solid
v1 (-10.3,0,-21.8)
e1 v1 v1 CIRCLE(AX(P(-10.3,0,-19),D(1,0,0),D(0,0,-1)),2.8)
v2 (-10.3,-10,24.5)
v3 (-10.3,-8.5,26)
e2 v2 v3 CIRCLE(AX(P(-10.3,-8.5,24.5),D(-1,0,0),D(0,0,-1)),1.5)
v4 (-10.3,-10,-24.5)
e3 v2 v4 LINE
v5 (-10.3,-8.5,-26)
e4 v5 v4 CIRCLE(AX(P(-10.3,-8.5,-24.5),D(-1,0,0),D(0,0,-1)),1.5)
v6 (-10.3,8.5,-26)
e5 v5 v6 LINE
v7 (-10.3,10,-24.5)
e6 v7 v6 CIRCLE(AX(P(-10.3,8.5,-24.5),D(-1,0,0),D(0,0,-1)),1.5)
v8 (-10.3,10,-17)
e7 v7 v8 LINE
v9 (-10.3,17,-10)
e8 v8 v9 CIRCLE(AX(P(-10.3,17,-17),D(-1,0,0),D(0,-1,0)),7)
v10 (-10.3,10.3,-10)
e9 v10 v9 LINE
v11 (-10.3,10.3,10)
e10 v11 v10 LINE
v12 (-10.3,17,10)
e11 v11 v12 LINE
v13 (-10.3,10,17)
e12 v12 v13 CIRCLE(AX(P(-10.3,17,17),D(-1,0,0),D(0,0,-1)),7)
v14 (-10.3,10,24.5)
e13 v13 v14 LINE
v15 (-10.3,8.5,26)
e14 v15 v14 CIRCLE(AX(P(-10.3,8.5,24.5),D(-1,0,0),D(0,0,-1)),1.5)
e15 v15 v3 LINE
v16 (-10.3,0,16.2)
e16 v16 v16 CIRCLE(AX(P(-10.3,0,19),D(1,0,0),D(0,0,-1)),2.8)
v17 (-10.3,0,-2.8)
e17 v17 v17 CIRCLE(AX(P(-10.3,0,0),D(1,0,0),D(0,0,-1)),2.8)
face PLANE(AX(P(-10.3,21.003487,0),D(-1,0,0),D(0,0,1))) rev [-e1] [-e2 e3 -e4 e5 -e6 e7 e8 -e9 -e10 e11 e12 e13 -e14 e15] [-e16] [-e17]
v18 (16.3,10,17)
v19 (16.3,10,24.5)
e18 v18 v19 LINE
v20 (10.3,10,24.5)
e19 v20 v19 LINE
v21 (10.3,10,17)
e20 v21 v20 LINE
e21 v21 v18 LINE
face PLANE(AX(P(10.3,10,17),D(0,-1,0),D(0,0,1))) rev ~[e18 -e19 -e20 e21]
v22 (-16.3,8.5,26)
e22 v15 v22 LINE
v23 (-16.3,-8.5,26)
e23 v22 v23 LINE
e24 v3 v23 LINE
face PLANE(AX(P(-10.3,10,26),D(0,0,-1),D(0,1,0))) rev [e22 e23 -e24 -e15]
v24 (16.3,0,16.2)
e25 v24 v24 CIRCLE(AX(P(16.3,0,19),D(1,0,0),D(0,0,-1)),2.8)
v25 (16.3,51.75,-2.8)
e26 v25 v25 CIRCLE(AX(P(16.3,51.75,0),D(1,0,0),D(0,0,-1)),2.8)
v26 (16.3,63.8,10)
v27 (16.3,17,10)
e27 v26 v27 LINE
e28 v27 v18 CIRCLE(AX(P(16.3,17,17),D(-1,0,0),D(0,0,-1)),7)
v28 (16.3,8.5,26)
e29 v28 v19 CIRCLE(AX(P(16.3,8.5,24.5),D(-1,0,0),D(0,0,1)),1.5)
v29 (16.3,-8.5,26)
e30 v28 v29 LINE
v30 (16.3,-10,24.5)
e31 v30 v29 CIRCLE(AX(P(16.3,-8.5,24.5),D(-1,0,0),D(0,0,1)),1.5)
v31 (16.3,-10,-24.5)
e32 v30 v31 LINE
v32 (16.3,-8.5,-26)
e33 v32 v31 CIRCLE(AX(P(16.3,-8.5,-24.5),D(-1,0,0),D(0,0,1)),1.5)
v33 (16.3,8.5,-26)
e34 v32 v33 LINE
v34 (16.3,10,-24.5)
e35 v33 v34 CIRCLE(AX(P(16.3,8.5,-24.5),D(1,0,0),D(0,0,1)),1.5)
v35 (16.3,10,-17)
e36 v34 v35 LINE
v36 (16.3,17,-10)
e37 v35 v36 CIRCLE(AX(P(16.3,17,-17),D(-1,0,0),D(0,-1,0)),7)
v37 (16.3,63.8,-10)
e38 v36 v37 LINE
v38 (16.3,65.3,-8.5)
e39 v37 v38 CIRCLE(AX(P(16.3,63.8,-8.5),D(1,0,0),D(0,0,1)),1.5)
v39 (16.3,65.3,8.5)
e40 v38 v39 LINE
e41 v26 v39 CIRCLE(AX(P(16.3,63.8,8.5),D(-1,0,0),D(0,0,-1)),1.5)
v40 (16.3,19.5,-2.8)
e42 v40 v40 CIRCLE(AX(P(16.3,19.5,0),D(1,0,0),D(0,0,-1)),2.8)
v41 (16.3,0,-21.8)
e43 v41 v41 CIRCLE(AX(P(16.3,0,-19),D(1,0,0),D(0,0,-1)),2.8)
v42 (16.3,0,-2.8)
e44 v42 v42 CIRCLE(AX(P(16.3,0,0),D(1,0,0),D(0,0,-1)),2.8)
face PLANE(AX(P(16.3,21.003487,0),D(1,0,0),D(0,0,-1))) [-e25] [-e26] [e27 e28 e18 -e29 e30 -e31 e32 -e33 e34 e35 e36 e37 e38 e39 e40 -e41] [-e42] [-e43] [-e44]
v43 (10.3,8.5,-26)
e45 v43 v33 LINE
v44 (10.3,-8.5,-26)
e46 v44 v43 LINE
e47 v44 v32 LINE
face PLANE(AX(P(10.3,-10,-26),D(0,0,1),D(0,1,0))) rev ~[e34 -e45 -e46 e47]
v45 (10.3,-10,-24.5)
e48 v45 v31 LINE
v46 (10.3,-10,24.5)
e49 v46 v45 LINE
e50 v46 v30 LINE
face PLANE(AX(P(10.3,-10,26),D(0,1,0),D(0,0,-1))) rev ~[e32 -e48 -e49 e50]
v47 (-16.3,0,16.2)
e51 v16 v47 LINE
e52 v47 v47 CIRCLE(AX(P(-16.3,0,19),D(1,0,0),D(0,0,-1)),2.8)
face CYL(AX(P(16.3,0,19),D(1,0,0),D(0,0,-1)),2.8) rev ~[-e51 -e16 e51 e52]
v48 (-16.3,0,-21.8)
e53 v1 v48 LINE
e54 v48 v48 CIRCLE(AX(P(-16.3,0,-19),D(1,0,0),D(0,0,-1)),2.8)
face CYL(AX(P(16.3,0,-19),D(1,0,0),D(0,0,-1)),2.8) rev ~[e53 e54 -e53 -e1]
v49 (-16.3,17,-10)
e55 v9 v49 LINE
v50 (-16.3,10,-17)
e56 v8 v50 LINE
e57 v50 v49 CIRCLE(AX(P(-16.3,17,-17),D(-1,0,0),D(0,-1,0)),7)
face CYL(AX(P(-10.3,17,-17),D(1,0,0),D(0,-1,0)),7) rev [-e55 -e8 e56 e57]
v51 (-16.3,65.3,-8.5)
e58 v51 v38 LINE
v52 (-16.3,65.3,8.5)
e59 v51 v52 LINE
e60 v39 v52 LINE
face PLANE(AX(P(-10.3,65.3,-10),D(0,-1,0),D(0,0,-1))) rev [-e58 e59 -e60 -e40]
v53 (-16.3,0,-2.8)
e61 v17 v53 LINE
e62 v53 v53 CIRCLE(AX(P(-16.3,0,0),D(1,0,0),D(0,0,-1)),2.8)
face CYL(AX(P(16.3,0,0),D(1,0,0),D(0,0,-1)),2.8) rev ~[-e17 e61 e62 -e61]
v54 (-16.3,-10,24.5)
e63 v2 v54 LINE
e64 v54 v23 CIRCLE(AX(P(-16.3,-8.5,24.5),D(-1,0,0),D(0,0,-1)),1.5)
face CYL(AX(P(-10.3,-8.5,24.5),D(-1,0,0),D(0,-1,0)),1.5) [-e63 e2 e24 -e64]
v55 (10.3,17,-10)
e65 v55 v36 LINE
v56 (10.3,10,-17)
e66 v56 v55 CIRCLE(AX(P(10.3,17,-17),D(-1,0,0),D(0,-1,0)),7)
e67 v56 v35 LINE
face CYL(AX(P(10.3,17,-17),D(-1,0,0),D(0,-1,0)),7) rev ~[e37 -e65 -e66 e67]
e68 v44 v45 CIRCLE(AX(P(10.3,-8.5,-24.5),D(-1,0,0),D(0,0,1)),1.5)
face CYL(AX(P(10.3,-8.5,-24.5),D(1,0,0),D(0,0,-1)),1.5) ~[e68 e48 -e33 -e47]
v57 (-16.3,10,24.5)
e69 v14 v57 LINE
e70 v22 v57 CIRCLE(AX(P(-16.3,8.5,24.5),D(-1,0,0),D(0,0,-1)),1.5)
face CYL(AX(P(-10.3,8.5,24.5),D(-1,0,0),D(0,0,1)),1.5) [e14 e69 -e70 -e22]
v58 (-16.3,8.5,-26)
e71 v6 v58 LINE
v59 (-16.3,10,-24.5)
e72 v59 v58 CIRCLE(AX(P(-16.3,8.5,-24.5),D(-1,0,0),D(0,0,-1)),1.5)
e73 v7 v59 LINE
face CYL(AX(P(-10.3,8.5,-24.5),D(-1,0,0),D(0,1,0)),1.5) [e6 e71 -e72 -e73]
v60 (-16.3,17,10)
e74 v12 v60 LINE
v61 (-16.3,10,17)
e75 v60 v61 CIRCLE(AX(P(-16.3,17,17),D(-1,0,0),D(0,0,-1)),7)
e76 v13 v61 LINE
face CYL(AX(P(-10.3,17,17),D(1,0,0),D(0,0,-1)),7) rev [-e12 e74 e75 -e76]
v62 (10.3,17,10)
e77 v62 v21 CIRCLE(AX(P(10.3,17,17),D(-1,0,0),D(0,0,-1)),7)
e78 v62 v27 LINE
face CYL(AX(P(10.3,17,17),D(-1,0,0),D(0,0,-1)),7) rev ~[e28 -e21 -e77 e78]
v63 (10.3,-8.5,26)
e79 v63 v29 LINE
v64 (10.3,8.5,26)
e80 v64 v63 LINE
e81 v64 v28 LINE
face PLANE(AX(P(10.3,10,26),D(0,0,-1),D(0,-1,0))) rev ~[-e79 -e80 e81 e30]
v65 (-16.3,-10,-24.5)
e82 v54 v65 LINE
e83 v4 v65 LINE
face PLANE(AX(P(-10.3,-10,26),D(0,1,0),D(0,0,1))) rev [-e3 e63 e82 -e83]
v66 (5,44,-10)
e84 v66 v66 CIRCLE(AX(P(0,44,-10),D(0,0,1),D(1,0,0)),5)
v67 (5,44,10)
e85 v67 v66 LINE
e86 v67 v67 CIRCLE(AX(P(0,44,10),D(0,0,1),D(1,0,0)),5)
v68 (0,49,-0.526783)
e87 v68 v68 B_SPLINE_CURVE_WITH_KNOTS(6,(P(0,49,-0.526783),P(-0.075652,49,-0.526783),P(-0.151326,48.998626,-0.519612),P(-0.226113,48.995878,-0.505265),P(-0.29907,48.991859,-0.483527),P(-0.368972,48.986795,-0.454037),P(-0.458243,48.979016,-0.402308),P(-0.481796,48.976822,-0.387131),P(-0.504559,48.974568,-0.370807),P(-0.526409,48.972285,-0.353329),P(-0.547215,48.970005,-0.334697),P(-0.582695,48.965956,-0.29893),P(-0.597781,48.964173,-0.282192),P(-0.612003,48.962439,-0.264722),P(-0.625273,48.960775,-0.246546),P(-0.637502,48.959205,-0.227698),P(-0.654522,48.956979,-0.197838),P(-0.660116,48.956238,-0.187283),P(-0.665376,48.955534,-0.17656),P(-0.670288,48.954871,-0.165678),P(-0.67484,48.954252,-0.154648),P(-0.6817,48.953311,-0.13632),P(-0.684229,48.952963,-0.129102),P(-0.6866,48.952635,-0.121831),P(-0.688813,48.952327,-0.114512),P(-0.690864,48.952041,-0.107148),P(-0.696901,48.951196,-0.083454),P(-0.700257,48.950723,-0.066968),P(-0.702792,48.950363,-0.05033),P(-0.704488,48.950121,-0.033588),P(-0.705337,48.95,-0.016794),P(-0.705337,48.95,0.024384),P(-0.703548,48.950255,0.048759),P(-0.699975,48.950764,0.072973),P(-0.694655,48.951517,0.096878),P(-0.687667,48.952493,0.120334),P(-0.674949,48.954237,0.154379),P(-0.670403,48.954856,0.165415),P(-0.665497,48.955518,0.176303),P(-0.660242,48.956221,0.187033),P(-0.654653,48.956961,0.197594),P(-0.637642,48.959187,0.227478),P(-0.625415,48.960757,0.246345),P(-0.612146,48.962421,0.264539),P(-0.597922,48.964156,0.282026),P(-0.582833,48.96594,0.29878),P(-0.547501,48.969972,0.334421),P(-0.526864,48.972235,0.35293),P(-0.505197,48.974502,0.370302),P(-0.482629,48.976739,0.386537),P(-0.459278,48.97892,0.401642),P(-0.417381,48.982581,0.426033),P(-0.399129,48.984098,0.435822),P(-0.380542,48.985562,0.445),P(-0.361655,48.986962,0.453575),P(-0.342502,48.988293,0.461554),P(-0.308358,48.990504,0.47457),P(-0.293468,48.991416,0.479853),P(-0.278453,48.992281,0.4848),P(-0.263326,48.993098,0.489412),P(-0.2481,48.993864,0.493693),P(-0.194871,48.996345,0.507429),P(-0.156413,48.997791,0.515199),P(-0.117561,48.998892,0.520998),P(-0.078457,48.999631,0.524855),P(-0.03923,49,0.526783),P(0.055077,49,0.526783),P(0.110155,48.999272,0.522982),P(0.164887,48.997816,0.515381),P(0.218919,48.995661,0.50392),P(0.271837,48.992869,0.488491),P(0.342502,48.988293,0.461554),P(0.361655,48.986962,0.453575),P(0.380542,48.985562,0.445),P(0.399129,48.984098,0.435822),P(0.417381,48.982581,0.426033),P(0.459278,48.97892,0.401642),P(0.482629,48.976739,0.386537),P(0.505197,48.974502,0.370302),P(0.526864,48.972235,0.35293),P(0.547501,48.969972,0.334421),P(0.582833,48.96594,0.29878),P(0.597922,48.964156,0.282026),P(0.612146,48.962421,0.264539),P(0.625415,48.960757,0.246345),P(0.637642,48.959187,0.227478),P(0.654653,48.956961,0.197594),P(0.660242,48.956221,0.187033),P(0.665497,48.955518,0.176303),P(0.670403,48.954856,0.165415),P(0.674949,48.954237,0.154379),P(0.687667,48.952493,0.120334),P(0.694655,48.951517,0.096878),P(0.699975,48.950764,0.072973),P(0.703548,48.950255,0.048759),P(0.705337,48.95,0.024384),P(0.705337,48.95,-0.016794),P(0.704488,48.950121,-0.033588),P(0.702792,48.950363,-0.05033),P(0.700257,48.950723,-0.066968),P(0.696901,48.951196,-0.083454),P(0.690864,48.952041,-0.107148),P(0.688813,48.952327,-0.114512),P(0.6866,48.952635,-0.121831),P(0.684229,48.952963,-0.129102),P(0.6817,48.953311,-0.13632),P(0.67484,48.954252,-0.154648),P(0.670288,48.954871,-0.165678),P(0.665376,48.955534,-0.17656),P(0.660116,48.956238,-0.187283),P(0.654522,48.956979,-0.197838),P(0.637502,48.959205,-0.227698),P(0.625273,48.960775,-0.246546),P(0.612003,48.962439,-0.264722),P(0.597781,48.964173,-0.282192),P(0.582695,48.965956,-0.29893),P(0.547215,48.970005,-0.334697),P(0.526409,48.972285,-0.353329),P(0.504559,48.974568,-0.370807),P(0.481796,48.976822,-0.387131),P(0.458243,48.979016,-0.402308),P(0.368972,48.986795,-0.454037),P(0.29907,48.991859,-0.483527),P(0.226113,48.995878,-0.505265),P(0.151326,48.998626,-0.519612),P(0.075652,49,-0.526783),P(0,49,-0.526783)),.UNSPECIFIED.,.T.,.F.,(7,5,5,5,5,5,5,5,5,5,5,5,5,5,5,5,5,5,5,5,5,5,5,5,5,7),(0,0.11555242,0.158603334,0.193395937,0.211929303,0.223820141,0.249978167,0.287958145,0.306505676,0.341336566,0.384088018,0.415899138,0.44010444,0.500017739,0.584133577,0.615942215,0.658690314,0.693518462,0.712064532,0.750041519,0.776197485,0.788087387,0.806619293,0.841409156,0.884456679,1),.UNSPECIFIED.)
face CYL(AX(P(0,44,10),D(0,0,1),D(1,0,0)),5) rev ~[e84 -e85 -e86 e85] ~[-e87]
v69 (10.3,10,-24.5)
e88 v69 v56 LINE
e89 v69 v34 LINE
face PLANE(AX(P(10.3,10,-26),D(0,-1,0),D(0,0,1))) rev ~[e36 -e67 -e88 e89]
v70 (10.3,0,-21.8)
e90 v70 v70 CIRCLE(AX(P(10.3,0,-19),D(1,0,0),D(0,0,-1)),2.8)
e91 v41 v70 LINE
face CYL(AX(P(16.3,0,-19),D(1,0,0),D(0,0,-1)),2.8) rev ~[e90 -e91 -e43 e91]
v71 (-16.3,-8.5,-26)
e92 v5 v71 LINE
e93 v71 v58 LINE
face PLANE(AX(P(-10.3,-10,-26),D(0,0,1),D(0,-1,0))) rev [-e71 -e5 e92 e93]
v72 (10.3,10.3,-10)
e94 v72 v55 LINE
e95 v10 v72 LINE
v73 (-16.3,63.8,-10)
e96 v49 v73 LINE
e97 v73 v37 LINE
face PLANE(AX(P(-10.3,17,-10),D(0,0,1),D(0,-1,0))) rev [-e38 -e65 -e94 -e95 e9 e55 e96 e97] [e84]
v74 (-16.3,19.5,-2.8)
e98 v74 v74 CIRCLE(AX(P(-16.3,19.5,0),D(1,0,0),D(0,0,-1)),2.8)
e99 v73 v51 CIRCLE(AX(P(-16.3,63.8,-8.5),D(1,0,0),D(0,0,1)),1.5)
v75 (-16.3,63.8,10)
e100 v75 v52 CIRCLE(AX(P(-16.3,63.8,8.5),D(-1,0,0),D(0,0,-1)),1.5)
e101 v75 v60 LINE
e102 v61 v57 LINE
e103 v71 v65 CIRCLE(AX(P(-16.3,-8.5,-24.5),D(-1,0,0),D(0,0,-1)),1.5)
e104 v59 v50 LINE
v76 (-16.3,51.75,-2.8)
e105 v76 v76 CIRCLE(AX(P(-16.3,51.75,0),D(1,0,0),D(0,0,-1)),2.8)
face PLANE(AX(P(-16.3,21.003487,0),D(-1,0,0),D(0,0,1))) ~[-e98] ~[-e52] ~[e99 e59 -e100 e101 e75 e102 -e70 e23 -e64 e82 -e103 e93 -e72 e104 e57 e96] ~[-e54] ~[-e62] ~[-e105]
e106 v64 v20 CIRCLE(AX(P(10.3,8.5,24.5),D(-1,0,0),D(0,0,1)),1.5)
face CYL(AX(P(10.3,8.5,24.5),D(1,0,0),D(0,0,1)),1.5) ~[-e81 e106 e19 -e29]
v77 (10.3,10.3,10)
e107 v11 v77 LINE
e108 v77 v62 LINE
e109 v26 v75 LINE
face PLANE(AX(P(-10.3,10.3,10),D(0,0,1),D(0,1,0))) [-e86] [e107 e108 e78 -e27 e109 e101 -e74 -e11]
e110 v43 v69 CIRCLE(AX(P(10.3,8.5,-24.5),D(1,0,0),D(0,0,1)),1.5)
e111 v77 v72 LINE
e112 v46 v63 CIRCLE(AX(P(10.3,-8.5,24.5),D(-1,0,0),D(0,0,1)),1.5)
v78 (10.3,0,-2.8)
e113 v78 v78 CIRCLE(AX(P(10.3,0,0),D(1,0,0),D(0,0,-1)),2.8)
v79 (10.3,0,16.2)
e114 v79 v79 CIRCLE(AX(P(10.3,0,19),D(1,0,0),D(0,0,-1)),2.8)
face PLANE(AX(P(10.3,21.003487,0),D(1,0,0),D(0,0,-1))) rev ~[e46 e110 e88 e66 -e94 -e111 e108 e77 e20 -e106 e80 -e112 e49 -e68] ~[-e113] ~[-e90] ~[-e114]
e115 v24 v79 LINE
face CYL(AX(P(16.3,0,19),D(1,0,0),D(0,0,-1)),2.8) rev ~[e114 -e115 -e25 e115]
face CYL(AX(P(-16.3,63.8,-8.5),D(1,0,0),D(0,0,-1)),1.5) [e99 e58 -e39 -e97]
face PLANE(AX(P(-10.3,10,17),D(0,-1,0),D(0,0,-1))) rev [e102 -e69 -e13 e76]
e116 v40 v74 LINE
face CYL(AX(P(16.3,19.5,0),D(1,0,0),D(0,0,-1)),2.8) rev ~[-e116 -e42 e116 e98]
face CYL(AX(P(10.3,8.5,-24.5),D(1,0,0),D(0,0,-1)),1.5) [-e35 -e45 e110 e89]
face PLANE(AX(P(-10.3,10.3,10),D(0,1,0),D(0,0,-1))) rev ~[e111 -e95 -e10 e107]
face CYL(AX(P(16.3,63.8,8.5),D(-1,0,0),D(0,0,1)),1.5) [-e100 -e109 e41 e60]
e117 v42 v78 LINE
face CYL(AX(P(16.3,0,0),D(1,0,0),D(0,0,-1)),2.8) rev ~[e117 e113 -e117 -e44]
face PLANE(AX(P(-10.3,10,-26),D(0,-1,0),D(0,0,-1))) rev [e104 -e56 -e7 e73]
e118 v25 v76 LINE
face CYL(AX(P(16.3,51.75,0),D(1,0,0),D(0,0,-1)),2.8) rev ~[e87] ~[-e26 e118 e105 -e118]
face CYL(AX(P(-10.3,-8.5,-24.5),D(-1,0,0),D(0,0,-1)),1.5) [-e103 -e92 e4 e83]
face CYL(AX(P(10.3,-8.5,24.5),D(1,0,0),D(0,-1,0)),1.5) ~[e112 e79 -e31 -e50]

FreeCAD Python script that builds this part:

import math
import FreeCAD as App
import Part
import Sketcher
Q = App.Units.Quantity


def edges_at(feature, points):
    """Names of the edges that pass closest to the given points."""
    edges = feature.Shape.Edges
    near = lambda p: min(range(len(edges)), key=lambda i: edges[i].distToShape(Part.Vertex(*p))[0])
    return sorted({f"Edge{near(p) + 1}" for p in points})


def add_polygon(sketch, points):
    """Adds a closed chain of lines whose ends are joined by coincident constraints."""
    first, n = sketch.GeometryCount, len(points)
    for a, b in zip(points, points[1:] + points[:1]):
        sketch.addGeometry(Part.LineSegment(App.Vector(*a, 0), App.Vector(*b, 0)), False)
    for i in range(n):
        sketch.addConstraint(Sketcher.Constraint("Coincident", first + i, 2, first + (i + 1) % n, 1))

doc = App.newDocument("Part")
body = doc.addObject("PartDesign::Body", "Body")

sketch1 = body.newObject("Sketcher::SketchObject", "Sketch")
sketch1.AttachmentSupport = (doc.getObject("YZ_Plane"), [""])
sketch1.MapMode = "FlatFace"
add_polygon(sketch1, [(65.3, 10), (10.3, 10), (10.3, -10), (65.3, -10)])
sketch1.addConstraint(Sketcher.Constraint("Horizontal", 0))
sketch1.addConstraint(Sketcher.Constraint("Vertical", 1))
sketch1.addConstraint(Sketcher.Constraint("Horizontal", 2))
sketch1.addConstraint(Sketcher.Constraint("Vertical", 3))
sketch1.addConstraint(Sketcher.Constraint("DistanceX", 0, 2, 0, 1, Q("55 mm")))
sketch1.addConstraint(Sketcher.Constraint("DistanceY", 1, 2, 1, 1, Q("20 mm")))
sketch1.addConstraint(Sketcher.Constraint("DistanceY", -1, 1, 0, 2, Q("10 mm")))
sketch1.addConstraint(Sketcher.Constraint("DistanceX", -1, 1, 0, 2, Q("10.3 mm")))
pad1 = body.newObject("PartDesign::Pad", "Pad")
pad1.Profile = sketch1
pad1.Type = "TwoLengths"
pad1.Length = 10.3
pad1.Length2 = 10.3

sketch2 = body.newObject("Sketcher::SketchObject", "Sketch001")
sketch2.AttachmentSupport = (doc.getObject("YZ_Plane"), [""])
sketch2.MapMode = "FlatFace"
sketch2.AttachmentOffset = App.Placement(App.Vector(0, 0, 10.3), App.Rotation())
sketch2.addGeometry(Part.LineSegment(App.Vector(10, -26, 0), App.Vector(10, -17, 0)), False)
sketch2.addGeometry(Part.ArcOfCircle(Part.Circle(App.Vector(17, -17, 0), App.Vector(0, 0, 1), 7), math.radians(90), math.radians(180)), False)
sketch2.addGeometry(Part.LineSegment(App.Vector(17, -10, 0), App.Vector(65.3, -10, 0)), False)
sketch2.addGeometry(Part.LineSegment(App.Vector(65.3, -10, 0), App.Vector(65.3, 10, 0)), False)
sketch2.addGeometry(Part.LineSegment(App.Vector(65.3, 10, 0), App.Vector(17, 10, 0)), False)
sketch2.addGeometry(Part.ArcOfCircle(Part.Circle(App.Vector(17, 17, 0), App.Vector(0, 0, 1), 7), math.radians(-180), math.radians(-90)), False)
sketch2.addGeometry(Part.LineSegment(App.Vector(10, 17, 0), App.Vector(10, 26, 0)), False)
sketch2.addGeometry(Part.LineSegment(App.Vector(10, 26, 0), App.Vector(-10, 26, 0)), False)
sketch2.addGeometry(Part.LineSegment(App.Vector(-10, 26, 0), App.Vector(-10, -26, 0)), False)
sketch2.addGeometry(Part.LineSegment(App.Vector(-10, -26, 0), App.Vector(10, -26, 0)), False)
sketch2.addConstraint(Sketcher.Constraint("Tangent", 0, 2, 1, 2))
sketch2.addConstraint(Sketcher.Constraint("Tangent", 1, 1, 2, 1))
sketch2.addConstraint(Sketcher.Constraint("Coincident", 2, 2, 3, 1))
sketch2.addConstraint(Sketcher.Constraint("Coincident", 3, 2, 4, 1))
sketch2.addConstraint(Sketcher.Constraint("Tangent", 4, 2, 5, 2))
sketch2.addConstraint(Sketcher.Constraint("Tangent", 5, 1, 6, 1))
sketch2.addConstraint(Sketcher.Constraint("Coincident", 6, 2, 7, 1))
sketch2.addConstraint(Sketcher.Constraint("Coincident", 7, 2, 8, 1))
sketch2.addConstraint(Sketcher.Constraint("Coincident", 8, 2, 9, 1))
sketch2.addConstraint(Sketcher.Constraint("Coincident", 9, 2, 0, 1))
sketch2.addConstraint(Sketcher.Constraint("Vertical", 0))
sketch2.addConstraint(Sketcher.Constraint("Horizontal", 2))
sketch2.addConstraint(Sketcher.Constraint("Vertical", 3))
sketch2.addConstraint(Sketcher.Constraint("Horizontal", 4))
sketch2.addConstraint(Sketcher.Constraint("Vertical", 6))
sketch2.addConstraint(Sketcher.Constraint("Horizontal", 7))
sketch2.addConstraint(Sketcher.Constraint("Vertical", 8))
sketch2.addConstraint(Sketcher.Constraint("Horizontal", 9))
sketch2.addConstraint(Sketcher.Constraint("Equal", 1, 5))
sketch2.addConstraint(Sketcher.Constraint("Symmetric", 6, 2, 8, 2, -1, 1))
sketch2.addConstraint(Sketcher.Constraint("Symmetric", 1, 3, 5, 3, -1))
sketch2.addConstraint(Sketcher.Constraint("Equal", 9, 3))
sketch2.addConstraint(Sketcher.Constraint("Radius", 1, Q("7 mm")))
sketch2.addConstraint(Sketcher.Constraint("DistanceX", 7, 2, 7, 1, Q("20 mm")))
sketch2.addConstraint(Sketcher.Constraint("DistanceY", 0, 1, 0, 2, Q("9 mm")))
sketch2.addConstraint(Sketcher.Constraint("DistanceX", 2, 1, 2, 2, Q("48.3 mm")))
pad2 = body.newObject("PartDesign::Pad", "Pad001")
pad2.Profile = sketch2
pad2.Length = 6
doc.recompute()

mirrored = body.newObject("PartDesign::Mirrored", "Mirrored")
mirrored.Originals = [pad2]
mirrored.MirrorPlane = (doc.getObject("YZ_Plane"), [""])
body.Tip = mirrored

sketch3 = body.newObject("Sketcher::SketchObject", "Sketch002")
sketch3.AttachmentSupport = (doc.getObject("YZ_Plane"), [""])
sketch3.MapMode = "FlatFace"
sketch3.AttachmentOffset = App.Placement(App.Vector(0, 0, 16.3), App.Rotation())
sketch3.addGeometry(Part.Circle(App.Vector(0, 0, 0), App.Vector(0, 0, 1), 2.8), False)
sketch3.addGeometry(Part.Circle(App.Vector(0, -19, 0), App.Vector(0, 0, 1), 2.8), False)
sketch3.addGeometry(Part.Circle(App.Vector(0, 19, 0), App.Vector(0, 0, 1), 2.8), False)
sketch3.addGeometry(Part.Circle(App.Vector(19.5, 0, 0), App.Vector(0, 0, 1), 2.8), False)
sketch3.addGeometry(Part.Circle(App.Vector(51.75, 0, 0), App.Vector(0, 0, 1), 2.8), False)
sketch3.addConstraint(Sketcher.Constraint("Coincident", 0, 3, -1, 1))
sketch3.addConstraint(Sketcher.Constraint("Equal", 0, 1))
sketch3.addConstraint(Sketcher.Constraint("Equal", 1, 2))
sketch3.addConstraint(Sketcher.Constraint("Equal", 2, 3))
sketch3.addConstraint(Sketcher.Constraint("Equal", 3, 4))
sketch3.addConstraint(Sketcher.Constraint("Symmetric", 1, 3, 2, 3, -1, 1))
sketch3.addConstraint(Sketcher.Constraint("PointOnObject", 1, 3, -2))
sketch3.addConstraint(Sketcher.Constraint("PointOnObject", 3, 3, -1))
sketch3.addConstraint(Sketcher.Constraint("PointOnObject", 4, 3, -1))
sketch3.addConstraint(Sketcher.Constraint("Diameter", 0, Q("5.6 mm")))
sketch3.addConstraint(Sketcher.Constraint("DistanceY", 1, 3, -1, 1, Q("19 mm")))
sketch3.addConstraint(Sketcher.Constraint("DistanceX", -1, 1, 3, 3, Q("19.5 mm")))
sketch3.addConstraint(Sketcher.Constraint("DistanceX", -1, 1, 4, 3, Q("51.75 mm")))
pocket1 = body.newObject("PartDesign::Pocket", "Pocket")
pocket1.Profile = sketch3
pocket1.Type = "ThroughAll"

sketch4 = body.newObject("Sketcher::SketchObject", "Sketch003")
sketch4.AttachmentSupport = (doc.getObject("XY_Plane"), [""])
sketch4.MapMode = "FlatFace"
sketch4.AttachmentOffset = App.Placement(App.Vector(0, 0, 10), App.Rotation())
sketch4.addGeometry(Part.Circle(App.Vector(0, 44, 0), App.Vector(0, 0, 1), 5), False)
sketch4.addConstraint(Sketcher.Constraint("PointOnObject", 0, 3, -2))
sketch4.addConstraint(Sketcher.Constraint("Diameter", 0, Q("10 mm")))
sketch4.addConstraint(Sketcher.Constraint("DistanceY", -1, 1, 0, 3, Q("44 mm")))
pocket2 = body.newObject("PartDesign::Pocket", "Pocket001")
pocket2.Profile = sketch4
pocket2.Type = "ThroughAll"
doc.recompute()

fillet = body.newObject("PartDesign::Fillet", "Fillet")
fillet.Base = (pocket2, edges_at(pocket2, [
    (13.3, 10, 26),
    (13.3, -10, 26),
    (13.3, -10, -26),
    (13.3, 10, -26),
    (-13.3, -10, 26),
    (-13.3, 10, 26),
    (-13.3, 10, -26),
    (-13.3, -10, -26),
    (0, 65.3, 10),
    (0, 65.3, -10),
]))
fillet.Radius = 1.5

doc.recompute()
